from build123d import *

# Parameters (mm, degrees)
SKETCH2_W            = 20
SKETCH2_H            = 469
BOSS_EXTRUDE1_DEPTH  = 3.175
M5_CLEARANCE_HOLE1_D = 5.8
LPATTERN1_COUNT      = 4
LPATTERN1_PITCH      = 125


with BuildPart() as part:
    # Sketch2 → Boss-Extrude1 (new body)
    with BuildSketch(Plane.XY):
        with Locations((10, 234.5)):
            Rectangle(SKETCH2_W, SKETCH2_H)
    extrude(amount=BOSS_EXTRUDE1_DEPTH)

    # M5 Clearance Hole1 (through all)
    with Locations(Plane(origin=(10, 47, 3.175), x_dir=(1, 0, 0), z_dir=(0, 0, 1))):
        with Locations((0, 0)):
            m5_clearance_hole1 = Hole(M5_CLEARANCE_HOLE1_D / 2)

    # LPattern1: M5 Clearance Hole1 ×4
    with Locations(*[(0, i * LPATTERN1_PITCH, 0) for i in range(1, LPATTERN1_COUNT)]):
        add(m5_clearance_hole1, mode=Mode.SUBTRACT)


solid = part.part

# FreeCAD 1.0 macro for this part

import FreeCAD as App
import Part
import Sketcher

V = App.Vector

doc = App.newDocument("Part")
body = doc.addObject("PartDesign::Body", "Body")

# Sketch on XY plane
sketch1 = body.newObject("Sketcher::SketchObject", "Sketch")
sketch1.AttachmentSupport = (doc.getObject("XY_Plane"), [""])
sketch1.MapMode = "FlatFace"
sketch1.addGeometry([
    Part.LineSegment(V(0, 469, 0), V(0, 0, 0)),
    Part.LineSegment(V(0, 0, 0), V(20, 0, 0)),
    Part.LineSegment(V(20, 0, 0), V(20, 469, 0)),
    Part.LineSegment(V(20, 469, 0), V(0, 469, 0)),
], False)
sketch1.addConstraint([
    Sketcher.Constraint("Coincident", 0, 2, 1, 1),
    Sketcher.Constraint("Coincident", 1, 2, 2, 1),
    Sketcher.Constraint("Coincident", 2, 2, 3, 1),
    Sketcher.Constraint("Coincident", 3, 2, 0, 1),
    Sketcher.Constraint("Vertical", 0),
    Sketcher.Constraint("Horizontal", 1),
    Sketcher.Constraint("Vertical", 2),
    Sketcher.Constraint("Horizontal", 3),
    Sketcher.Constraint("Coincident", 0, 2, -1, 1),
    Sketcher.Constraint("DistanceX", 1, 1, 1, 2, 20.0),
    Sketcher.Constraint("DistanceY", 0, 2, 0, 1, 469.0),
])
pad1 = body.newObject("PartDesign::Pad", "Pad")
pad1.Profile = sketch1
pad1.Length = 3.175

# Sketch on XY plane
sketch2 = body.newObject("Sketcher::SketchObject", "Sketch001")
sketch2.AttachmentSupport = (doc.getObject("XY_Plane"), [""])
sketch2.MapMode = "FlatFace"
sketch2.AttachmentOffset = App.Placement(V(0, 0, 3.175), App.Rotation())
sketch2.addGeometry(Part.Circle(V(10, 47, 0), V(0, 0, 1), 2.9), False)
sketch2.addConstraint([
    Sketcher.Constraint("Diameter", 0, 5.8),
    Sketcher.Constraint("DistanceX", -1, 1, 0, 3, 10.0),
    Sketcher.Constraint("DistanceY", -1, 1, 0, 3, 47.0),
])
doc.recompute()
hole = body.newObject("PartDesign::Hole", "Hole")
hole.Profile = sketch2
hole.ThreadType = "None"
hole.Diameter = 5.8
hole.DepthType = "ThroughAll"
doc.recompute()

linearpattern = body.newObject("PartDesign::LinearPattern", "LinearPattern")
linearpattern.Originals = [hole]
linearpattern.Direction = (doc.getObject("Y_Axis"), [""])
linearpattern.Mode = "offset"
linearpattern.Offset = 125
linearpattern.Occurrences = 4
body.Tip = linearpattern

doc.recompute()
